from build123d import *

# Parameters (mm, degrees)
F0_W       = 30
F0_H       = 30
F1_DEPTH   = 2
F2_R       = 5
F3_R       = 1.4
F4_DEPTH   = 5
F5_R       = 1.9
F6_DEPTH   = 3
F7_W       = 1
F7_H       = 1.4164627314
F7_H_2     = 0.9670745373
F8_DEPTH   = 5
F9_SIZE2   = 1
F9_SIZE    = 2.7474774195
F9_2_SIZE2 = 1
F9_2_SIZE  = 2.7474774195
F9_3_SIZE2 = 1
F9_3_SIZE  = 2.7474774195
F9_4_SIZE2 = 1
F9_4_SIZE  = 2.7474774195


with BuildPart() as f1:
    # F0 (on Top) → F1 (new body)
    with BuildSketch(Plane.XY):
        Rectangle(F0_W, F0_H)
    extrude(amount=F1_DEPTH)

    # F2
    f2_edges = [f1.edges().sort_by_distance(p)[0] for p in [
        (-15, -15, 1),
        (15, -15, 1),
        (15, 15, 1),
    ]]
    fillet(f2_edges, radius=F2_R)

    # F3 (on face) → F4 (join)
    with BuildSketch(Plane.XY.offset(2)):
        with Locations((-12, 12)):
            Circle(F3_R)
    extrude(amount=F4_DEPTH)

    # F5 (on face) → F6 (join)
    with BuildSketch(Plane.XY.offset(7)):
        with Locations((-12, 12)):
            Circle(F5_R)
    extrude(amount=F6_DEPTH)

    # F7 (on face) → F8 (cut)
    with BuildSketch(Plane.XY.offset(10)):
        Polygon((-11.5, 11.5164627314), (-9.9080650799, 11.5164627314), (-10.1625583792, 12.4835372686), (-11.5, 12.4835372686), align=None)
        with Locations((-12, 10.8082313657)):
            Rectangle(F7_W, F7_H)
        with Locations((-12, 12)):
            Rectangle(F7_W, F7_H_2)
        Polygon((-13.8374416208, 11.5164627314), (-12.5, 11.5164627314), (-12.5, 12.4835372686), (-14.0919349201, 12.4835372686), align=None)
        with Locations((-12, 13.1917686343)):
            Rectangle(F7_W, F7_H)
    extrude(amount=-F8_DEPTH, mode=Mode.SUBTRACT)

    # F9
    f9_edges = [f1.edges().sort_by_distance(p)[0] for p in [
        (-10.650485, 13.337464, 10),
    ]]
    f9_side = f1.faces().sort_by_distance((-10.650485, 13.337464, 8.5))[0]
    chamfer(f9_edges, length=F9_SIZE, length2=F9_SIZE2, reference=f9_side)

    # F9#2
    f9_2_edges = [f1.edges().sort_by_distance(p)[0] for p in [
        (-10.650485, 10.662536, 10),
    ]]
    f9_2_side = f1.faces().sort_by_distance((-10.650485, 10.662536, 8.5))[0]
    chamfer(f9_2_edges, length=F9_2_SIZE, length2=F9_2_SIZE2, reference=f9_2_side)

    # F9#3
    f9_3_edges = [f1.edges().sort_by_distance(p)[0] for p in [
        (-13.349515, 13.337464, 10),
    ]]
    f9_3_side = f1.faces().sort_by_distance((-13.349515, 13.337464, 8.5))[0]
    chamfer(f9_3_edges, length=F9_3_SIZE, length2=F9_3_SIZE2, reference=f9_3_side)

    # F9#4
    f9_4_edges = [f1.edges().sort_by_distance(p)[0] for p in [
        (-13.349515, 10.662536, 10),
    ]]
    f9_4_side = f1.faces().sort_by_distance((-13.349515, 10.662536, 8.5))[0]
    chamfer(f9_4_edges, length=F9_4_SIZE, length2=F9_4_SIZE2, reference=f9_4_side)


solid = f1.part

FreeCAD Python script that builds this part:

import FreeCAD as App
import Part
import Sketcher

V = App.Vector


def edges_at(feature, points):
    """Names of the edges that pass closest to the given points."""
    edges = feature.Shape.Edges
    near = lambda p: min(range(len(edges)), key=lambda i: edges[i].distToShape(Part.Vertex(*p))[0])
    return sorted({f"Edge{near(p) + 1}" for p in points})

doc = App.newDocument("Part")
body = doc.addObject("PartDesign::Body", "Body")

# Sketch on XY plane
sketch1 = body.newObject("Sketcher::SketchObject", "Sketch")
sketch1.AttachmentSupport = (doc.getObject("XY_Plane"), [""])
sketch1.MapMode = "FlatFace"
sketch1.addGeometry([
    Part.LineSegment(V(-15, 15, 0), V(-15, -15, 0)),
    Part.LineSegment(V(-15, -15, 0), V(15, -15, 0)),
    Part.LineSegment(V(15, -15, 0), V(15, 15, 0)),
    Part.LineSegment(V(15, 15, 0), V(-15, 15, 0)),
], False)
sketch1.addConstraint([
    Sketcher.Constraint("Coincident", 0, 2, 1, 1),
    Sketcher.Constraint("Coincident", 1, 2, 2, 1),
    Sketcher.Constraint("Coincident", 2, 2, 3, 1),
    Sketcher.Constraint("Coincident", 3, 2, 0, 1),
    Sketcher.Constraint("Vertical", 0),
    Sketcher.Constraint("Horizontal", 1),
    Sketcher.Constraint("Vertical", 2),
    Sketcher.Constraint("Horizontal", 3),
    Sketcher.Constraint("Symmetric", 0, 2, 2, 2, -1, 1),
    Sketcher.Constraint("Equal", 3, 0),
    Sketcher.Constraint("DistanceX", 1, 1, 1, 2, 30.0),
])
pad1 = body.newObject("PartDesign::Pad", "Pad")
pad1.Profile = sketch1
pad1.Length = 2
doc.recompute()

fillet = body.newObject("PartDesign::Fillet", "Fillet")
fillet.Base = (pad1, edges_at(pad1, [(-15, -15, 1), (15, -15, 1), (15, 15, 1)]))
fillet.Radius = 5

# Sketch on XY plane
sketch2 = body.newObject("Sketcher::SketchObject", "Sketch001")
sketch2.AttachmentSupport = (doc.getObject("XY_Plane"), [""])
sketch2.MapMode = "FlatFace"
sketch2.AttachmentOffset = App.Placement(V(0, 0, 2), App.Rotation())
sketch2.addGeometry(Part.Circle(V(-12, 12, 0), V(0, 0, 1), 1.4), False)
sketch2.addConstraint([
    Sketcher.Constraint("Diameter", 0, 2.8),
    Sketcher.Constraint("DistanceX", 0, 3, -1, 1, 12.0),
    Sketcher.Constraint("DistanceY", -1, 1, 0, 3, 12.0),
])
pad2 = body.newObject("PartDesign::Pad", "Pad001")
pad2.Profile = sketch2
pad2.Length = 5

# Sketch on XY plane
sketch3 = body.newObject("Sketcher::SketchObject", "Sketch002")
sketch3.AttachmentSupport = (doc.getObject("XY_Plane"), [""])
sketch3.MapMode = "FlatFace"
sketch3.AttachmentOffset = App.Placement(V(0, 0, 7), App.Rotation())
sketch3.addGeometry(Part.Circle(V(-12, 12, 0), V(0, 0, 1), 1.9), False)
sketch3.addConstraint([
    Sketcher.Constraint("Diameter", 0, 3.8),
    Sketcher.Constraint("DistanceX", 0, 3, -1, 1, 12.0),
    Sketcher.Constraint("DistanceY", -1, 1, 0, 3, 12.0),
])
pad3 = body.newObject("PartDesign::Pad", "Pad002")
pad3.Profile = sketch3
pad3.Length = 3

# Sketch on XY plane
sketch4 = body.newObject("Sketcher::SketchObject", "Sketch003")
sketch4.AttachmentSupport = (doc.getObject("XY_Plane"), [""])
sketch4.MapMode = "FlatFace"
sketch4.AttachmentOffset = App.Placement(V(0, 0, 10), App.Rotation())
sketch4.addGeometry([
    Part.LineSegment(V(-11.5, 11.516463, 0), V(-9.908065, 11.516463, 0)),  # 0
    Part.LineSegment(V(-9.908065, 11.516463, 0), V(-10.162558, 12.483537, 0)),  # 1
    Part.LineSegment(V(-10.162558, 12.483537, 0), V(-11.5, 12.483537, 0)),  # 2
    Part.LineSegment(V(-11.5, 12.483537, 0), V(-11.5, 13.9, 0)),  # 3
    Part.LineSegment(V(-11.5, 13.9, 0), V(-12.5, 13.9, 0)),  # 4
    Part.LineSegment(V(-12.5, 13.9, 0), V(-12.5, 12.483537, 0)),  # 5
    Part.LineSegment(V(-12.5, 12.483537, 0), V(-14.091935, 12.483537, 0)),  # 6
    Part.LineSegment(V(-14.091935, 12.483537, 0), V(-13.837442, 11.516463, 0)),  # 7
    Part.LineSegment(V(-13.837442, 11.516463, 0), V(-12.5, 11.516463, 0)),  # 8
    Part.LineSegment(V(-12.5, 11.516463, 0), V(-12.5, 10.1, 0)),  # 9
    Part.LineSegment(V(-12.5, 10.1, 0), V(-11.5, 10.1, 0)),  # 10
    Part.LineSegment(V(-11.5, 10.1, 0), V(-11.5, 11.516463, 0)),  # 11
], False)
sketch4.addConstraint([
    Sketcher.Constraint("Coincident", 0, 2, 1, 1),
    Sketcher.Constraint("Coincident", 1, 2, 2, 1),
    Sketcher.Constraint("Coincident", 2, 2, 3, 1),
    Sketcher.Constraint("Coincident", 3, 2, 4, 1),
    Sketcher.Constraint("Coincident", 4, 2, 5, 1),
    Sketcher.Constraint("Coincident", 5, 2, 6, 1),
    Sketcher.Constraint("Coincident", 6, 2, 7, 1),
    Sketcher.Constraint("Coincident", 7, 2, 8, 1),
    Sketcher.Constraint("Coincident", 8, 2, 9, 1),
    Sketcher.Constraint("Coincident", 9, 2, 10, 1),
    Sketcher.Constraint("Coincident", 10, 2, 11, 1),
    Sketcher.Constraint("Coincident", 11, 2, 0, 1),
    Sketcher.Constraint("Horizontal", 0),
    Sketcher.Constraint("Horizontal", 2),
    Sketcher.Constraint("Vertical", 3),
    Sketcher.Constraint("Horizontal", 4),
    Sketcher.Constraint("Vertical", 5),
    Sketcher.Constraint("Horizontal", 6),
    Sketcher.Constraint("Horizontal", 8),
    Sketcher.Constraint("Vertical", 9),
    Sketcher.Constraint("Horizontal", 10),
    Sketcher.Constraint("Vertical", 11),
    Sketcher.Constraint("Parallel", 1, 7),
    Sketcher.Constraint("Horizontal", 2, 2, 5, 2),
    Sketcher.Constraint("Horizontal", 0, 2, 7, 2),
    Sketcher.Constraint("Vertical", 5, 2, 8, 2),
    Sketcher.Constraint("Vertical", 3, 2, 10, 2),
    Sketcher.Constraint("Equal", 0, 6),
    Sketcher.Constraint("Equal", 5, 9),
    Sketcher.Constraint("DistanceX", 4, 2, 4, 1, 1.0),
    Sketcher.Constraint("Distance", 1, 1.0),
    Sketcher.Constraint("DistanceX", 2, 2, -1, 1, 11.5),
    Sketcher.Constraint("DistanceY", -1, 1, 3, 2, 13.9),
    Sketcher.Constraint("DistanceY", -1, 1, 9, 2, 10.1),
    Sketcher.Constraint("DistanceX", 2, 2, 2, 1, 1.337442),
    Sketcher.Constraint("DistanceX", 0, 1, 0, 2, 1.591935),
])
pocket1 = body.newObject("PartDesign::Pocket", "Pocket")
pocket1.Profile = sketch4
pocket1.Length = 5
doc.recompute()

chamfer = body.newObject("PartDesign::Chamfer", "Chamfer")
chamfer.Base = (pocket1, edges_at(pocket1, [(-10.65, 13.337, 10)]))
chamfer.ChamferType = "Two distances"
chamfer.Size = 2.747477
chamfer.Size2 = 1
chamfer.FlipDirection = True
doc.recompute()

chamfer2 = body.newObject("PartDesign::Chamfer", "Chamfer001")
chamfer2.Base = (chamfer, edges_at(chamfer, [(-10.65, 10.663, 10)]))
chamfer2.ChamferType = "Two distances"
chamfer2.Size = 2.747477
chamfer2.Size2 = 1
chamfer2.FlipDirection = True
doc.recompute()

chamfer3 = body.newObject("PartDesign::Chamfer", "Chamfer002")
chamfer3.Base = (chamfer2, edges_at(chamfer2, [(-13.35, 13.337, 10)]))
chamfer3.ChamferType = "Two distances"
chamfer3.Size = 2.747477
chamfer3.Size2 = 1
chamfer3.FlipDirection = True
doc.recompute()

chamfer4 = body.newObject("PartDesign::Chamfer", "Chamfer003")
chamfer4.Base = (chamfer3, edges_at(chamfer3, [(-13.35, 10.663, 10)]))
chamfer4.ChamferType = "Two distances"
chamfer4.Size = 2.747477
chamfer4.Size2 = 1
chamfer4.FlipDirection = True

doc.recompute()
